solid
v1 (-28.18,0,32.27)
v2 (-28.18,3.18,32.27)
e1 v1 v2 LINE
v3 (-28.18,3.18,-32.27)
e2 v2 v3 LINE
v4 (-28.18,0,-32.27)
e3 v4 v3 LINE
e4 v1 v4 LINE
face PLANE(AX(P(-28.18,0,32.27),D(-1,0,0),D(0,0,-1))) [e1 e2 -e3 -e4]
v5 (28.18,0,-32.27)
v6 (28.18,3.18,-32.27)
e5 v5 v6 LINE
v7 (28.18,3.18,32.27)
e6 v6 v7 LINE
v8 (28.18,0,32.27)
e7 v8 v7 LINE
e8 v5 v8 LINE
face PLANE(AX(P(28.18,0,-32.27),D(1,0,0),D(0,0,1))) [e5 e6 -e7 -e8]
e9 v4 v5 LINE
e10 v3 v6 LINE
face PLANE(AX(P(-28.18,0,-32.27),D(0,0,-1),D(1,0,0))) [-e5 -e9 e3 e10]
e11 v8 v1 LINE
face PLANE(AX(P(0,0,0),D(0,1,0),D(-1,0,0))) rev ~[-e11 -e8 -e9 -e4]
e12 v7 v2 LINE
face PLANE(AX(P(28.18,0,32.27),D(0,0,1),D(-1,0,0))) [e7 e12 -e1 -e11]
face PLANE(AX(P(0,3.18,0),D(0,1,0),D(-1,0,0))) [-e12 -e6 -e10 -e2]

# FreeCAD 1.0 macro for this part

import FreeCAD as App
import Part
import Sketcher

V = App.Vector


def add_polygon(sketch, points):
    """Adds a closed chain of lines whose ends are joined by coincident constraints."""
    first, n = sketch.GeometryCount, len(points)
    for a, b in zip(points, points[1:] + points[:1]):
        sketch.addGeometry(Part.LineSegment(App.Vector(*a, 0), App.Vector(*b, 0)), False)
    for i in range(n):
        sketch.addConstraint(Sketcher.Constraint("Coincident", first + i, 2, first + (i + 1) % n, 1))

doc = App.newDocument("Part")
body = doc.addObject("PartDesign::Body", "Body")

# Sketch on XZ plane
sketch1 = doc.addObject("Sketcher::SketchObject", "Sketch")
body.addObject(sketch1)
sketch1.AttachmentSupport = (doc.XZ_Plane, [""])
sketch1.MapMode = "FlatFace"
add_polygon(sketch1, [(-28.18, 32.27), (28.18, 32.27), (28.18, -32.27), (-28.18, -32.27)])  # lines 0-3
sketch1.addConstraint(Sketcher.Constraint("Horizontal", 0))
sketch1.addConstraint(Sketcher.Constraint("Vertical", 1))
sketch1.addConstraint(Sketcher.Constraint("Horizontal", 2))
sketch1.addConstraint(Sketcher.Constraint("Vertical", 3))
sketch1.addConstraint(Sketcher.Constraint("Symmetric", 0, 2, 2, 2, -1, 1))
sketch1.addConstraint(Sketcher.Constraint("DistanceX", 0, 1, 0, 2, 56.36))
sketch1.addConstraint(Sketcher.Constraint("DistanceY", 1, 2, 1, 1, 64.54))
pad1 = doc.addObject("PartDesign::Pad", "Pad")
body.addObject(pad1)
pad1.Profile = sketch1
pad1.Length = 3.18
pad1.Reversed = True

doc.recompute()
